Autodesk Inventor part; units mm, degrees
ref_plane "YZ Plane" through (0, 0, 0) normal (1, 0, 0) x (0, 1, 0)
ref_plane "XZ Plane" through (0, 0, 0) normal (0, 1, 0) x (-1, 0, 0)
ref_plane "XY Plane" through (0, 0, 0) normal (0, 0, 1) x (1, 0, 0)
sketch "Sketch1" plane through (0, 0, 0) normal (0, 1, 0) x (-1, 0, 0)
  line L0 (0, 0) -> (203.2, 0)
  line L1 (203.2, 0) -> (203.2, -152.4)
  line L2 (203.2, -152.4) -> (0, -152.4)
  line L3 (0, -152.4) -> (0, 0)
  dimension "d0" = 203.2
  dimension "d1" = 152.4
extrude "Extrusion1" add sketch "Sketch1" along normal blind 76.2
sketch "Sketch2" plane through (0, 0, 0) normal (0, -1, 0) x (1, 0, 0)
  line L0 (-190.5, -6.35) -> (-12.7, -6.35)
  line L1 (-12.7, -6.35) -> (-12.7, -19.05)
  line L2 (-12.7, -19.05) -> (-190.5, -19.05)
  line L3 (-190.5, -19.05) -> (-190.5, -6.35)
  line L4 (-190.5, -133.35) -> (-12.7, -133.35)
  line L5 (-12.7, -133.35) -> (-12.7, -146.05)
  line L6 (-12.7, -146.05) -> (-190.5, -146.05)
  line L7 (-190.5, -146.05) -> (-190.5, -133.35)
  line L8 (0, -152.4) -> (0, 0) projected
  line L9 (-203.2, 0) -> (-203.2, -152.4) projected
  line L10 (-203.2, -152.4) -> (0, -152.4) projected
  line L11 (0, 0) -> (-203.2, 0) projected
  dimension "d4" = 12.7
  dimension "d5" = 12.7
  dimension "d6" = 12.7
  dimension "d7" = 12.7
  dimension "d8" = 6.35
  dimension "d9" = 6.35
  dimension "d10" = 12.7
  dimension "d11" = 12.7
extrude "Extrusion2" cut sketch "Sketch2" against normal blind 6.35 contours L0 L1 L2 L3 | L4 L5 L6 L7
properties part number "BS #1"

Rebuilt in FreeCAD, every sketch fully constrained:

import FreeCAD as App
import Part
import Sketcher

V = App.Vector
Q = App.Units.Quantity

doc = App.newDocument("Part")
params = doc.addObject("Spreadsheet::Sheet", "Params")
for row, (alias, value) in enumerate([
    ("sketch1_width", "8 in"),
    ("sketch1_height", "6 in"),
    ("pad1_length", "3 in"),
    ("sketch2_height", "0.5 in"),
    ("sketch2_width", "7 in"),
    ("pocket1_length", "0.25 in"),
], start=1):
    params.set(f"A{row}", alias)
    params.set(f"B{row}", "=" + value)
    params.setAlias(f"B{row}", alias)

body = doc.addObject("PartDesign::Body", "Body")

# Sketch on XZ plane
sketch1 = body.newObject("Sketcher::SketchObject", "Sketch")
sketch1.AttachmentSupport = (doc.getObject("XZ_Plane"), [""])
sketch1.MapMode = "FlatFace"
sketch1.addGeometry([
    Part.LineSegment(V(-203, 0, 0), V(0, 0, 0)),
    Part.LineSegment(V(0, 0, 0), V(0, -152, 0)),
    Part.LineSegment(V(0, -152, 0), V(-203, -152, 0)),
    Part.LineSegment(V(-203, -152, 0), V(-203, 0, 0)),
], False)
sketch1.addConstraint([
    Sketcher.Constraint("Coincident", 0, 2, 1, 1),
    Sketcher.Constraint("Coincident", 1, 2, 2, 1),
    Sketcher.Constraint("Coincident", 2, 2, 3, 1),
    Sketcher.Constraint("Coincident", 3, 2, 0, 1),
    Sketcher.Constraint("Horizontal", 0),
    Sketcher.Constraint("Vertical", 1),
    Sketcher.Constraint("Horizontal", 2),
    Sketcher.Constraint("Vertical", 3),
    Sketcher.Constraint("Coincident", 0, 2, -1, 1),
    Sketcher.Constraint("DistanceX", 0, 1, 0, 2, Q("8 in")),
    Sketcher.Constraint("DistanceY", 1, 2, 1, 1, Q("6 in")),
])
sketch1.setExpression("Constraints[9]", "Params.sketch1_width")
sketch1.setExpression("Constraints[10]", "Params.sketch1_height")
pad1 = body.newObject("PartDesign::Pad", "Pad")
pad1.Profile = sketch1
pad1.setExpression("Length", "Params.pad1_length")
pad1.Reversed = True

# Sketch on XZ plane
sketch2 = body.newObject("Sketcher::SketchObject", "Sketch001")
sketch2.AttachmentSupport = (doc.getObject("XZ_Plane"), [""])
sketch2.MapMode = "FlatFace"
sketch2.addGeometry([
    Part.LineSegment(V(-13, -6, 0), V(-190, -6, 0)),  # 0
    Part.LineSegment(V(-190, -6, 0), V(-190, -19, 0)),  # 1
    Part.LineSegment(V(-190, -19, 0), V(-13, -19, 0)),  # 2
    Part.LineSegment(V(-13, -19, 0), V(-13, -6, 0)),  # 3
    Part.LineSegment(V(-13, -133, 0), V(-190, -133, 0)),  # 4
    Part.LineSegment(V(-190, -133, 0), V(-190, -146, 0)),  # 5
    Part.LineSegment(V(-190, -146, 0), V(-13, -146, 0)),  # 6
    Part.LineSegment(V(-13, -146, 0), V(-13, -133, 0)),  # 7
], False)
sketch2.addConstraint([
    Sketcher.Constraint("Coincident", 0, 2, 1, 1),
    Sketcher.Constraint("Coincident", 1, 2, 2, 1),
    Sketcher.Constraint("Coincident", 2, 2, 3, 1),
    Sketcher.Constraint("Coincident", 3, 2, 0, 1),
    Sketcher.Constraint("Coincident", 4, 2, 5, 1),
    Sketcher.Constraint("Coincident", 5, 2, 6, 1),
    Sketcher.Constraint("Coincident", 6, 2, 7, 1),
    Sketcher.Constraint("Coincident", 7, 2, 4, 1),
    Sketcher.Constraint("Horizontal", 0),
    Sketcher.Constraint("Vertical", 1),
    Sketcher.Constraint("Horizontal", 2),
    Sketcher.Constraint("Vertical", 3),
    Sketcher.Constraint("Horizontal", 4),
    Sketcher.Constraint("Vertical", 5),
    Sketcher.Constraint("Horizontal", 6),
    Sketcher.Constraint("Vertical", 7),
    Sketcher.Constraint("Vertical", 1, 2, 4, 2),
    Sketcher.Constraint("Vertical", 3, 2, 6, 2),
    Sketcher.Constraint("Equal", 3, 5),
    Sketcher.Constraint("DistanceY", 1, 2, 1, 1, Q("0.5 in")),
    Sketcher.Constraint("DistanceX", 2, 2, -1, 1, Q("0.5 in")),
    Sketcher.Constraint("DistanceX", 0, 2, 0, 1, Q("7 in")),
    Sketcher.Constraint("DistanceY", 0, 2, -1, 1, Q("0.25 in")),
    Sketcher.Constraint("DistanceY", 4, 2, 0, 2, Q("5 in")),
])
sketch2.setExpression("Constraints[19]", "Params.sketch2_height")
sketch2.setExpression("Constraints[21]", "Params.sketch2_width")
pocket1 = body.newObject("PartDesign::Pocket", "Pocket")
pocket1.Profile = sketch2
pocket1.setExpression("Length", "Params.pocket1_length")

doc.recompute()
